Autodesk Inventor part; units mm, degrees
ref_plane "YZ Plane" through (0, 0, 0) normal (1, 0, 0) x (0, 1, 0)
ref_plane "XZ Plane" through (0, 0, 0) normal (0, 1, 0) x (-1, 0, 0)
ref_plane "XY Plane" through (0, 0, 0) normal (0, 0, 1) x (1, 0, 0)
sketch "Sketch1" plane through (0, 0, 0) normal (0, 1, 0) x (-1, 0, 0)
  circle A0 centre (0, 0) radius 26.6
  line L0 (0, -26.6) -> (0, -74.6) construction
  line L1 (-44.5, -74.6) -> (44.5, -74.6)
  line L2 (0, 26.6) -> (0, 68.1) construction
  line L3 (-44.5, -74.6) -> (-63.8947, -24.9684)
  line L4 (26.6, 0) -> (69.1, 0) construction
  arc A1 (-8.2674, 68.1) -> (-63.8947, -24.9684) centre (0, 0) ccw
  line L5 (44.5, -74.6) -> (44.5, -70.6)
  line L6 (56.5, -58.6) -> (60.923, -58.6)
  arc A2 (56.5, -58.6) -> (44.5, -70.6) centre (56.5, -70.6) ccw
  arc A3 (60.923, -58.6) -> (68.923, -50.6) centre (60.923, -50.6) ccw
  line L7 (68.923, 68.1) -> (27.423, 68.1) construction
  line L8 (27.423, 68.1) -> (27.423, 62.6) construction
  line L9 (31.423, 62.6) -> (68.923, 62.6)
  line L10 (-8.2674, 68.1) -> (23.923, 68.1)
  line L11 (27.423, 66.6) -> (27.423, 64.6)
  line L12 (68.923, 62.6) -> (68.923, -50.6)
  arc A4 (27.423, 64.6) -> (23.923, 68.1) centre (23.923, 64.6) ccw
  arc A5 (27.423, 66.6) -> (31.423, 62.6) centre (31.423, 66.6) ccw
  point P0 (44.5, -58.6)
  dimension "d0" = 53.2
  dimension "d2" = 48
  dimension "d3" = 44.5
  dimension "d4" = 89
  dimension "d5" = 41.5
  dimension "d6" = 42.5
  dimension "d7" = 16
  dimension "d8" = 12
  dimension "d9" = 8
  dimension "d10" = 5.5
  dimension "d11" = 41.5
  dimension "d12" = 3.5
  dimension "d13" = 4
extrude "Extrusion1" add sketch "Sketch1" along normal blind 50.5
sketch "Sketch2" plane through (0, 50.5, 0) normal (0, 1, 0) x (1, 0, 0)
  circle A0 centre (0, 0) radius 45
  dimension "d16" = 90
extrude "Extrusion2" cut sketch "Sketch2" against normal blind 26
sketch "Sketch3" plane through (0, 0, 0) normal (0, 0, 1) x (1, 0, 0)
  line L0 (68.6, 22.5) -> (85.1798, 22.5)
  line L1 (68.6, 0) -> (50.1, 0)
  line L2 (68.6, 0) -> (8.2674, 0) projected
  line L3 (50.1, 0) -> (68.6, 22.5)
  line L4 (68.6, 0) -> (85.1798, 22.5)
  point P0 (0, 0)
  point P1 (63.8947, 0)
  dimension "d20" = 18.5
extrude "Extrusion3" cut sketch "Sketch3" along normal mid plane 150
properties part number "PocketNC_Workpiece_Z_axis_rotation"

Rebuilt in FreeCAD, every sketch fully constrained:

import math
import FreeCAD as App
import Part
import Sketcher

doc = App.newDocument("Part")
body = doc.addObject("PartDesign::Body", "Body")

# Sketch on XZ plane
sketch1 = body.newObject("Sketcher::SketchObject", "Sketch")
sketch1.AttachmentSupport = (doc.getObject("XZ_Plane"), [""])
sketch1.MapMode = "FlatFace"
sketch1.addGeometry([
    Part.LineSegment(App.Vector(63.9, -25, 0), App.Vector(44.5, -74.6, 0)),  # 0
    Part.LineSegment(App.Vector(44.5, -74.6, 0), App.Vector(-44.5, -74.6, 0)),  # 1
    Part.LineSegment(App.Vector(-44.5, -74.6, 0), App.Vector(-44.5, -70.6, 0)),  # 2
    Part.ArcOfCircle(Part.Circle(App.Vector(-56.5, -70.6, 0), App.Vector(0, 0, 1), 12), math.radians(0), math.radians(90)),  # 3
    Part.LineSegment(App.Vector(-56.5, -58.6, 0), App.Vector(-60.9, -58.6, 0)),  # 4
    Part.ArcOfCircle(Part.Circle(App.Vector(-60.9, -50.6, 0), App.Vector(0, 0, 1), 8), math.radians(180), math.radians(270)),  # 5
    Part.LineSegment(App.Vector(-68.9, -50.6, 0), App.Vector(-68.9, 62.6, 0)),  # 6
    Part.LineSegment(App.Vector(-68.9, 62.6, 0), App.Vector(-31.4, 62.6, 0)),  # 7
    Part.ArcOfCircle(Part.Circle(App.Vector(-31.4, 66.6, 0), App.Vector(0, 0, 1), 4), math.radians(-90), math.radians(0)),  # 8
    Part.LineSegment(App.Vector(-27.4, 66.6, 0), App.Vector(-27.4, 64.6, 0)),  # 9
    Part.ArcOfCircle(Part.Circle(App.Vector(-23.9, 64.6, 0), App.Vector(0, 0, 1), 3.5), math.radians(90), math.radians(180)),  # 10
    Part.LineSegment(App.Vector(-23.9, 68.1, 0), App.Vector(8.3, 68.1, 0)),  # 11
    Part.ArcOfCircle(Part.Circle(App.Vector(0, 0, 0), App.Vector(0, 0, 1), 68.6), math.radians(-21), math.radians(83)),  # 12
    Part.Circle(App.Vector(0, 0, 0), App.Vector(0, 0, 1), 26.6),  # 13
], False)
sketch1.addConstraint([
    Sketcher.Constraint("Coincident", 0, 2, 1, 1),
    Sketcher.Constraint("Coincident", 1, 2, 2, 1),
    Sketcher.Constraint("Tangent", 2, 2, 3, 1),
    Sketcher.Constraint("Tangent", 3, 2, 4, 1),
    Sketcher.Constraint("Tangent", 4, 2, 5, 2),
    Sketcher.Constraint("Tangent", 5, 1, 6, 1),
    Sketcher.Constraint("Coincident", 6, 2, 7, 1),
    Sketcher.Constraint("Tangent", 7, 2, 8, 1),
    Sketcher.Constraint("Tangent", 8, 2, 9, 1),
    Sketcher.Constraint("Tangent", 9, 2, 10, 2),
    Sketcher.Constraint("Tangent", 10, 1, 11, 1),
    Sketcher.Constraint("Coincident", 11, 2, 12, 2),
    Sketcher.Constraint("Tangent", 12, 1, 0, 1),
    Sketcher.Constraint("Horizontal", 1),
    Sketcher.Constraint("Vertical", 2),
    Sketcher.Constraint("Horizontal", 4),
    Sketcher.Constraint("Vertical", 6),
    Sketcher.Constraint("Horizontal", 7),
    Sketcher.Constraint("Vertical", 9),
    Sketcher.Constraint("Horizontal", 11),
    Sketcher.Constraint("Coincident", 12, 3, -1, 1),
    Sketcher.Constraint("Coincident", 13, 3, -1, 1),
    Sketcher.Constraint("Radius", 3, 12.0),
    Sketcher.Constraint("Radius", 5, 8.0),
    Sketcher.Constraint("Radius", 8, 4.0),
    Sketcher.Constraint("Diameter", 13, 53.2),
    Sketcher.Constraint("Radius", 10, 3.5),
    Sketcher.Constraint("DistanceX", 1, 2, 1, 1, 89.0),
    Sketcher.Constraint("DistanceY", 2, 1, 2, 2, 4.0),
    Sketcher.Constraint("DistanceX", -1, 1, 0, 2, 44.5),
    Sketcher.Constraint("Radius", 12, 68.6),
    Sketcher.Constraint("DistanceX", 6, 2, 8, 2, 41.5),
    Sketcher.Constraint("DistanceY", 7, 2, 10, 1, 5.5),
    Sketcher.Constraint("DistanceY", 6, 1, 6, 2, 113.2),
    Sketcher.Constraint("DistanceY", 3, 3, -1, 1, 70.6),
    Sketcher.Constraint("DistanceX", 4, 2, 4, 1, 4.423),
])
pad1 = body.newObject("PartDesign::Pad", "Pad")
pad1.Profile = sketch1
pad1.Length = 50.5
pad1.Reversed = True

# Sketch on XZ plane
sketch2 = body.newObject("Sketcher::SketchObject", "Sketch001")
sketch2.AttachmentSupport = (doc.getObject("XZ_Plane"), [""])
sketch2.MapMode = "FlatFace"
sketch2.AttachmentOffset = App.Placement(App.Vector(0, 0, -50.5), App.Rotation())
sketch2.addGeometry(Part.Circle(App.Vector(0, 0, 0), App.Vector(0, 0, 1), 45), False)
sketch2.addConstraint([
    Sketcher.Constraint("Coincident", 0, 3, -1, 1),
    Sketcher.Constraint("Diameter", 0, 90.0),
])
pocket1 = body.newObject("PartDesign::Pocket", "Pocket")
pocket1.Profile = sketch2
pocket1.Length = 26
pocket1.Reversed = True

# Sketch on XY plane
sketch3 = body.newObject("Sketcher::SketchObject", "Sketch002")
sketch3.AttachmentSupport = (doc.getObject("XY_Plane"), [""])
sketch3.MapMode = "FlatFace"
sketch3.addGeometry([
    Part.LineSegment(App.Vector(85, 22, 0), App.Vector(69, 22, 0)),
    Part.LineSegment(App.Vector(69, 22, 0), App.Vector(50, 0, 0)),
    Part.LineSegment(App.Vector(50, 0, 0), App.Vector(69, 0, 0)),
    Part.LineSegment(App.Vector(69, 0, 0), App.Vector(85, 22, 0)),
], False)
sketch3.addConstraint([
    Sketcher.Constraint("Coincident", 0, 2, 1, 1),
    Sketcher.Constraint("Coincident", 1, 2, 2, 1),
    Sketcher.Constraint("Coincident", 2, 2, 3, 1),
    Sketcher.Constraint("Coincident", 3, 2, 0, 1),
    Sketcher.Constraint("Horizontal", 0),
    Sketcher.Constraint("Horizontal", 2),
    Sketcher.Constraint("PointOnObject", 1, 2, -1),
    Sketcher.Constraint("Vertical", 0, 2, 2, 2),
    Sketcher.Constraint("DistanceX", 2, 1, 2, 2, 18.5),
    Sketcher.Constraint("DistanceX", -1, 1, 0, 2, 68.6),
    Sketcher.Constraint("DistanceY", -1, 1, 0, 2, 22.5),
    Sketcher.Constraint("DistanceX", 0, 2, 0, 1, 16.5798),
])
pocket2 = body.newObject("PartDesign::Pocket", "Pocket001")
pocket2.Profile = sketch3
pocket2.Length = 150
pocket2.Midplane = True

doc.recompute()
